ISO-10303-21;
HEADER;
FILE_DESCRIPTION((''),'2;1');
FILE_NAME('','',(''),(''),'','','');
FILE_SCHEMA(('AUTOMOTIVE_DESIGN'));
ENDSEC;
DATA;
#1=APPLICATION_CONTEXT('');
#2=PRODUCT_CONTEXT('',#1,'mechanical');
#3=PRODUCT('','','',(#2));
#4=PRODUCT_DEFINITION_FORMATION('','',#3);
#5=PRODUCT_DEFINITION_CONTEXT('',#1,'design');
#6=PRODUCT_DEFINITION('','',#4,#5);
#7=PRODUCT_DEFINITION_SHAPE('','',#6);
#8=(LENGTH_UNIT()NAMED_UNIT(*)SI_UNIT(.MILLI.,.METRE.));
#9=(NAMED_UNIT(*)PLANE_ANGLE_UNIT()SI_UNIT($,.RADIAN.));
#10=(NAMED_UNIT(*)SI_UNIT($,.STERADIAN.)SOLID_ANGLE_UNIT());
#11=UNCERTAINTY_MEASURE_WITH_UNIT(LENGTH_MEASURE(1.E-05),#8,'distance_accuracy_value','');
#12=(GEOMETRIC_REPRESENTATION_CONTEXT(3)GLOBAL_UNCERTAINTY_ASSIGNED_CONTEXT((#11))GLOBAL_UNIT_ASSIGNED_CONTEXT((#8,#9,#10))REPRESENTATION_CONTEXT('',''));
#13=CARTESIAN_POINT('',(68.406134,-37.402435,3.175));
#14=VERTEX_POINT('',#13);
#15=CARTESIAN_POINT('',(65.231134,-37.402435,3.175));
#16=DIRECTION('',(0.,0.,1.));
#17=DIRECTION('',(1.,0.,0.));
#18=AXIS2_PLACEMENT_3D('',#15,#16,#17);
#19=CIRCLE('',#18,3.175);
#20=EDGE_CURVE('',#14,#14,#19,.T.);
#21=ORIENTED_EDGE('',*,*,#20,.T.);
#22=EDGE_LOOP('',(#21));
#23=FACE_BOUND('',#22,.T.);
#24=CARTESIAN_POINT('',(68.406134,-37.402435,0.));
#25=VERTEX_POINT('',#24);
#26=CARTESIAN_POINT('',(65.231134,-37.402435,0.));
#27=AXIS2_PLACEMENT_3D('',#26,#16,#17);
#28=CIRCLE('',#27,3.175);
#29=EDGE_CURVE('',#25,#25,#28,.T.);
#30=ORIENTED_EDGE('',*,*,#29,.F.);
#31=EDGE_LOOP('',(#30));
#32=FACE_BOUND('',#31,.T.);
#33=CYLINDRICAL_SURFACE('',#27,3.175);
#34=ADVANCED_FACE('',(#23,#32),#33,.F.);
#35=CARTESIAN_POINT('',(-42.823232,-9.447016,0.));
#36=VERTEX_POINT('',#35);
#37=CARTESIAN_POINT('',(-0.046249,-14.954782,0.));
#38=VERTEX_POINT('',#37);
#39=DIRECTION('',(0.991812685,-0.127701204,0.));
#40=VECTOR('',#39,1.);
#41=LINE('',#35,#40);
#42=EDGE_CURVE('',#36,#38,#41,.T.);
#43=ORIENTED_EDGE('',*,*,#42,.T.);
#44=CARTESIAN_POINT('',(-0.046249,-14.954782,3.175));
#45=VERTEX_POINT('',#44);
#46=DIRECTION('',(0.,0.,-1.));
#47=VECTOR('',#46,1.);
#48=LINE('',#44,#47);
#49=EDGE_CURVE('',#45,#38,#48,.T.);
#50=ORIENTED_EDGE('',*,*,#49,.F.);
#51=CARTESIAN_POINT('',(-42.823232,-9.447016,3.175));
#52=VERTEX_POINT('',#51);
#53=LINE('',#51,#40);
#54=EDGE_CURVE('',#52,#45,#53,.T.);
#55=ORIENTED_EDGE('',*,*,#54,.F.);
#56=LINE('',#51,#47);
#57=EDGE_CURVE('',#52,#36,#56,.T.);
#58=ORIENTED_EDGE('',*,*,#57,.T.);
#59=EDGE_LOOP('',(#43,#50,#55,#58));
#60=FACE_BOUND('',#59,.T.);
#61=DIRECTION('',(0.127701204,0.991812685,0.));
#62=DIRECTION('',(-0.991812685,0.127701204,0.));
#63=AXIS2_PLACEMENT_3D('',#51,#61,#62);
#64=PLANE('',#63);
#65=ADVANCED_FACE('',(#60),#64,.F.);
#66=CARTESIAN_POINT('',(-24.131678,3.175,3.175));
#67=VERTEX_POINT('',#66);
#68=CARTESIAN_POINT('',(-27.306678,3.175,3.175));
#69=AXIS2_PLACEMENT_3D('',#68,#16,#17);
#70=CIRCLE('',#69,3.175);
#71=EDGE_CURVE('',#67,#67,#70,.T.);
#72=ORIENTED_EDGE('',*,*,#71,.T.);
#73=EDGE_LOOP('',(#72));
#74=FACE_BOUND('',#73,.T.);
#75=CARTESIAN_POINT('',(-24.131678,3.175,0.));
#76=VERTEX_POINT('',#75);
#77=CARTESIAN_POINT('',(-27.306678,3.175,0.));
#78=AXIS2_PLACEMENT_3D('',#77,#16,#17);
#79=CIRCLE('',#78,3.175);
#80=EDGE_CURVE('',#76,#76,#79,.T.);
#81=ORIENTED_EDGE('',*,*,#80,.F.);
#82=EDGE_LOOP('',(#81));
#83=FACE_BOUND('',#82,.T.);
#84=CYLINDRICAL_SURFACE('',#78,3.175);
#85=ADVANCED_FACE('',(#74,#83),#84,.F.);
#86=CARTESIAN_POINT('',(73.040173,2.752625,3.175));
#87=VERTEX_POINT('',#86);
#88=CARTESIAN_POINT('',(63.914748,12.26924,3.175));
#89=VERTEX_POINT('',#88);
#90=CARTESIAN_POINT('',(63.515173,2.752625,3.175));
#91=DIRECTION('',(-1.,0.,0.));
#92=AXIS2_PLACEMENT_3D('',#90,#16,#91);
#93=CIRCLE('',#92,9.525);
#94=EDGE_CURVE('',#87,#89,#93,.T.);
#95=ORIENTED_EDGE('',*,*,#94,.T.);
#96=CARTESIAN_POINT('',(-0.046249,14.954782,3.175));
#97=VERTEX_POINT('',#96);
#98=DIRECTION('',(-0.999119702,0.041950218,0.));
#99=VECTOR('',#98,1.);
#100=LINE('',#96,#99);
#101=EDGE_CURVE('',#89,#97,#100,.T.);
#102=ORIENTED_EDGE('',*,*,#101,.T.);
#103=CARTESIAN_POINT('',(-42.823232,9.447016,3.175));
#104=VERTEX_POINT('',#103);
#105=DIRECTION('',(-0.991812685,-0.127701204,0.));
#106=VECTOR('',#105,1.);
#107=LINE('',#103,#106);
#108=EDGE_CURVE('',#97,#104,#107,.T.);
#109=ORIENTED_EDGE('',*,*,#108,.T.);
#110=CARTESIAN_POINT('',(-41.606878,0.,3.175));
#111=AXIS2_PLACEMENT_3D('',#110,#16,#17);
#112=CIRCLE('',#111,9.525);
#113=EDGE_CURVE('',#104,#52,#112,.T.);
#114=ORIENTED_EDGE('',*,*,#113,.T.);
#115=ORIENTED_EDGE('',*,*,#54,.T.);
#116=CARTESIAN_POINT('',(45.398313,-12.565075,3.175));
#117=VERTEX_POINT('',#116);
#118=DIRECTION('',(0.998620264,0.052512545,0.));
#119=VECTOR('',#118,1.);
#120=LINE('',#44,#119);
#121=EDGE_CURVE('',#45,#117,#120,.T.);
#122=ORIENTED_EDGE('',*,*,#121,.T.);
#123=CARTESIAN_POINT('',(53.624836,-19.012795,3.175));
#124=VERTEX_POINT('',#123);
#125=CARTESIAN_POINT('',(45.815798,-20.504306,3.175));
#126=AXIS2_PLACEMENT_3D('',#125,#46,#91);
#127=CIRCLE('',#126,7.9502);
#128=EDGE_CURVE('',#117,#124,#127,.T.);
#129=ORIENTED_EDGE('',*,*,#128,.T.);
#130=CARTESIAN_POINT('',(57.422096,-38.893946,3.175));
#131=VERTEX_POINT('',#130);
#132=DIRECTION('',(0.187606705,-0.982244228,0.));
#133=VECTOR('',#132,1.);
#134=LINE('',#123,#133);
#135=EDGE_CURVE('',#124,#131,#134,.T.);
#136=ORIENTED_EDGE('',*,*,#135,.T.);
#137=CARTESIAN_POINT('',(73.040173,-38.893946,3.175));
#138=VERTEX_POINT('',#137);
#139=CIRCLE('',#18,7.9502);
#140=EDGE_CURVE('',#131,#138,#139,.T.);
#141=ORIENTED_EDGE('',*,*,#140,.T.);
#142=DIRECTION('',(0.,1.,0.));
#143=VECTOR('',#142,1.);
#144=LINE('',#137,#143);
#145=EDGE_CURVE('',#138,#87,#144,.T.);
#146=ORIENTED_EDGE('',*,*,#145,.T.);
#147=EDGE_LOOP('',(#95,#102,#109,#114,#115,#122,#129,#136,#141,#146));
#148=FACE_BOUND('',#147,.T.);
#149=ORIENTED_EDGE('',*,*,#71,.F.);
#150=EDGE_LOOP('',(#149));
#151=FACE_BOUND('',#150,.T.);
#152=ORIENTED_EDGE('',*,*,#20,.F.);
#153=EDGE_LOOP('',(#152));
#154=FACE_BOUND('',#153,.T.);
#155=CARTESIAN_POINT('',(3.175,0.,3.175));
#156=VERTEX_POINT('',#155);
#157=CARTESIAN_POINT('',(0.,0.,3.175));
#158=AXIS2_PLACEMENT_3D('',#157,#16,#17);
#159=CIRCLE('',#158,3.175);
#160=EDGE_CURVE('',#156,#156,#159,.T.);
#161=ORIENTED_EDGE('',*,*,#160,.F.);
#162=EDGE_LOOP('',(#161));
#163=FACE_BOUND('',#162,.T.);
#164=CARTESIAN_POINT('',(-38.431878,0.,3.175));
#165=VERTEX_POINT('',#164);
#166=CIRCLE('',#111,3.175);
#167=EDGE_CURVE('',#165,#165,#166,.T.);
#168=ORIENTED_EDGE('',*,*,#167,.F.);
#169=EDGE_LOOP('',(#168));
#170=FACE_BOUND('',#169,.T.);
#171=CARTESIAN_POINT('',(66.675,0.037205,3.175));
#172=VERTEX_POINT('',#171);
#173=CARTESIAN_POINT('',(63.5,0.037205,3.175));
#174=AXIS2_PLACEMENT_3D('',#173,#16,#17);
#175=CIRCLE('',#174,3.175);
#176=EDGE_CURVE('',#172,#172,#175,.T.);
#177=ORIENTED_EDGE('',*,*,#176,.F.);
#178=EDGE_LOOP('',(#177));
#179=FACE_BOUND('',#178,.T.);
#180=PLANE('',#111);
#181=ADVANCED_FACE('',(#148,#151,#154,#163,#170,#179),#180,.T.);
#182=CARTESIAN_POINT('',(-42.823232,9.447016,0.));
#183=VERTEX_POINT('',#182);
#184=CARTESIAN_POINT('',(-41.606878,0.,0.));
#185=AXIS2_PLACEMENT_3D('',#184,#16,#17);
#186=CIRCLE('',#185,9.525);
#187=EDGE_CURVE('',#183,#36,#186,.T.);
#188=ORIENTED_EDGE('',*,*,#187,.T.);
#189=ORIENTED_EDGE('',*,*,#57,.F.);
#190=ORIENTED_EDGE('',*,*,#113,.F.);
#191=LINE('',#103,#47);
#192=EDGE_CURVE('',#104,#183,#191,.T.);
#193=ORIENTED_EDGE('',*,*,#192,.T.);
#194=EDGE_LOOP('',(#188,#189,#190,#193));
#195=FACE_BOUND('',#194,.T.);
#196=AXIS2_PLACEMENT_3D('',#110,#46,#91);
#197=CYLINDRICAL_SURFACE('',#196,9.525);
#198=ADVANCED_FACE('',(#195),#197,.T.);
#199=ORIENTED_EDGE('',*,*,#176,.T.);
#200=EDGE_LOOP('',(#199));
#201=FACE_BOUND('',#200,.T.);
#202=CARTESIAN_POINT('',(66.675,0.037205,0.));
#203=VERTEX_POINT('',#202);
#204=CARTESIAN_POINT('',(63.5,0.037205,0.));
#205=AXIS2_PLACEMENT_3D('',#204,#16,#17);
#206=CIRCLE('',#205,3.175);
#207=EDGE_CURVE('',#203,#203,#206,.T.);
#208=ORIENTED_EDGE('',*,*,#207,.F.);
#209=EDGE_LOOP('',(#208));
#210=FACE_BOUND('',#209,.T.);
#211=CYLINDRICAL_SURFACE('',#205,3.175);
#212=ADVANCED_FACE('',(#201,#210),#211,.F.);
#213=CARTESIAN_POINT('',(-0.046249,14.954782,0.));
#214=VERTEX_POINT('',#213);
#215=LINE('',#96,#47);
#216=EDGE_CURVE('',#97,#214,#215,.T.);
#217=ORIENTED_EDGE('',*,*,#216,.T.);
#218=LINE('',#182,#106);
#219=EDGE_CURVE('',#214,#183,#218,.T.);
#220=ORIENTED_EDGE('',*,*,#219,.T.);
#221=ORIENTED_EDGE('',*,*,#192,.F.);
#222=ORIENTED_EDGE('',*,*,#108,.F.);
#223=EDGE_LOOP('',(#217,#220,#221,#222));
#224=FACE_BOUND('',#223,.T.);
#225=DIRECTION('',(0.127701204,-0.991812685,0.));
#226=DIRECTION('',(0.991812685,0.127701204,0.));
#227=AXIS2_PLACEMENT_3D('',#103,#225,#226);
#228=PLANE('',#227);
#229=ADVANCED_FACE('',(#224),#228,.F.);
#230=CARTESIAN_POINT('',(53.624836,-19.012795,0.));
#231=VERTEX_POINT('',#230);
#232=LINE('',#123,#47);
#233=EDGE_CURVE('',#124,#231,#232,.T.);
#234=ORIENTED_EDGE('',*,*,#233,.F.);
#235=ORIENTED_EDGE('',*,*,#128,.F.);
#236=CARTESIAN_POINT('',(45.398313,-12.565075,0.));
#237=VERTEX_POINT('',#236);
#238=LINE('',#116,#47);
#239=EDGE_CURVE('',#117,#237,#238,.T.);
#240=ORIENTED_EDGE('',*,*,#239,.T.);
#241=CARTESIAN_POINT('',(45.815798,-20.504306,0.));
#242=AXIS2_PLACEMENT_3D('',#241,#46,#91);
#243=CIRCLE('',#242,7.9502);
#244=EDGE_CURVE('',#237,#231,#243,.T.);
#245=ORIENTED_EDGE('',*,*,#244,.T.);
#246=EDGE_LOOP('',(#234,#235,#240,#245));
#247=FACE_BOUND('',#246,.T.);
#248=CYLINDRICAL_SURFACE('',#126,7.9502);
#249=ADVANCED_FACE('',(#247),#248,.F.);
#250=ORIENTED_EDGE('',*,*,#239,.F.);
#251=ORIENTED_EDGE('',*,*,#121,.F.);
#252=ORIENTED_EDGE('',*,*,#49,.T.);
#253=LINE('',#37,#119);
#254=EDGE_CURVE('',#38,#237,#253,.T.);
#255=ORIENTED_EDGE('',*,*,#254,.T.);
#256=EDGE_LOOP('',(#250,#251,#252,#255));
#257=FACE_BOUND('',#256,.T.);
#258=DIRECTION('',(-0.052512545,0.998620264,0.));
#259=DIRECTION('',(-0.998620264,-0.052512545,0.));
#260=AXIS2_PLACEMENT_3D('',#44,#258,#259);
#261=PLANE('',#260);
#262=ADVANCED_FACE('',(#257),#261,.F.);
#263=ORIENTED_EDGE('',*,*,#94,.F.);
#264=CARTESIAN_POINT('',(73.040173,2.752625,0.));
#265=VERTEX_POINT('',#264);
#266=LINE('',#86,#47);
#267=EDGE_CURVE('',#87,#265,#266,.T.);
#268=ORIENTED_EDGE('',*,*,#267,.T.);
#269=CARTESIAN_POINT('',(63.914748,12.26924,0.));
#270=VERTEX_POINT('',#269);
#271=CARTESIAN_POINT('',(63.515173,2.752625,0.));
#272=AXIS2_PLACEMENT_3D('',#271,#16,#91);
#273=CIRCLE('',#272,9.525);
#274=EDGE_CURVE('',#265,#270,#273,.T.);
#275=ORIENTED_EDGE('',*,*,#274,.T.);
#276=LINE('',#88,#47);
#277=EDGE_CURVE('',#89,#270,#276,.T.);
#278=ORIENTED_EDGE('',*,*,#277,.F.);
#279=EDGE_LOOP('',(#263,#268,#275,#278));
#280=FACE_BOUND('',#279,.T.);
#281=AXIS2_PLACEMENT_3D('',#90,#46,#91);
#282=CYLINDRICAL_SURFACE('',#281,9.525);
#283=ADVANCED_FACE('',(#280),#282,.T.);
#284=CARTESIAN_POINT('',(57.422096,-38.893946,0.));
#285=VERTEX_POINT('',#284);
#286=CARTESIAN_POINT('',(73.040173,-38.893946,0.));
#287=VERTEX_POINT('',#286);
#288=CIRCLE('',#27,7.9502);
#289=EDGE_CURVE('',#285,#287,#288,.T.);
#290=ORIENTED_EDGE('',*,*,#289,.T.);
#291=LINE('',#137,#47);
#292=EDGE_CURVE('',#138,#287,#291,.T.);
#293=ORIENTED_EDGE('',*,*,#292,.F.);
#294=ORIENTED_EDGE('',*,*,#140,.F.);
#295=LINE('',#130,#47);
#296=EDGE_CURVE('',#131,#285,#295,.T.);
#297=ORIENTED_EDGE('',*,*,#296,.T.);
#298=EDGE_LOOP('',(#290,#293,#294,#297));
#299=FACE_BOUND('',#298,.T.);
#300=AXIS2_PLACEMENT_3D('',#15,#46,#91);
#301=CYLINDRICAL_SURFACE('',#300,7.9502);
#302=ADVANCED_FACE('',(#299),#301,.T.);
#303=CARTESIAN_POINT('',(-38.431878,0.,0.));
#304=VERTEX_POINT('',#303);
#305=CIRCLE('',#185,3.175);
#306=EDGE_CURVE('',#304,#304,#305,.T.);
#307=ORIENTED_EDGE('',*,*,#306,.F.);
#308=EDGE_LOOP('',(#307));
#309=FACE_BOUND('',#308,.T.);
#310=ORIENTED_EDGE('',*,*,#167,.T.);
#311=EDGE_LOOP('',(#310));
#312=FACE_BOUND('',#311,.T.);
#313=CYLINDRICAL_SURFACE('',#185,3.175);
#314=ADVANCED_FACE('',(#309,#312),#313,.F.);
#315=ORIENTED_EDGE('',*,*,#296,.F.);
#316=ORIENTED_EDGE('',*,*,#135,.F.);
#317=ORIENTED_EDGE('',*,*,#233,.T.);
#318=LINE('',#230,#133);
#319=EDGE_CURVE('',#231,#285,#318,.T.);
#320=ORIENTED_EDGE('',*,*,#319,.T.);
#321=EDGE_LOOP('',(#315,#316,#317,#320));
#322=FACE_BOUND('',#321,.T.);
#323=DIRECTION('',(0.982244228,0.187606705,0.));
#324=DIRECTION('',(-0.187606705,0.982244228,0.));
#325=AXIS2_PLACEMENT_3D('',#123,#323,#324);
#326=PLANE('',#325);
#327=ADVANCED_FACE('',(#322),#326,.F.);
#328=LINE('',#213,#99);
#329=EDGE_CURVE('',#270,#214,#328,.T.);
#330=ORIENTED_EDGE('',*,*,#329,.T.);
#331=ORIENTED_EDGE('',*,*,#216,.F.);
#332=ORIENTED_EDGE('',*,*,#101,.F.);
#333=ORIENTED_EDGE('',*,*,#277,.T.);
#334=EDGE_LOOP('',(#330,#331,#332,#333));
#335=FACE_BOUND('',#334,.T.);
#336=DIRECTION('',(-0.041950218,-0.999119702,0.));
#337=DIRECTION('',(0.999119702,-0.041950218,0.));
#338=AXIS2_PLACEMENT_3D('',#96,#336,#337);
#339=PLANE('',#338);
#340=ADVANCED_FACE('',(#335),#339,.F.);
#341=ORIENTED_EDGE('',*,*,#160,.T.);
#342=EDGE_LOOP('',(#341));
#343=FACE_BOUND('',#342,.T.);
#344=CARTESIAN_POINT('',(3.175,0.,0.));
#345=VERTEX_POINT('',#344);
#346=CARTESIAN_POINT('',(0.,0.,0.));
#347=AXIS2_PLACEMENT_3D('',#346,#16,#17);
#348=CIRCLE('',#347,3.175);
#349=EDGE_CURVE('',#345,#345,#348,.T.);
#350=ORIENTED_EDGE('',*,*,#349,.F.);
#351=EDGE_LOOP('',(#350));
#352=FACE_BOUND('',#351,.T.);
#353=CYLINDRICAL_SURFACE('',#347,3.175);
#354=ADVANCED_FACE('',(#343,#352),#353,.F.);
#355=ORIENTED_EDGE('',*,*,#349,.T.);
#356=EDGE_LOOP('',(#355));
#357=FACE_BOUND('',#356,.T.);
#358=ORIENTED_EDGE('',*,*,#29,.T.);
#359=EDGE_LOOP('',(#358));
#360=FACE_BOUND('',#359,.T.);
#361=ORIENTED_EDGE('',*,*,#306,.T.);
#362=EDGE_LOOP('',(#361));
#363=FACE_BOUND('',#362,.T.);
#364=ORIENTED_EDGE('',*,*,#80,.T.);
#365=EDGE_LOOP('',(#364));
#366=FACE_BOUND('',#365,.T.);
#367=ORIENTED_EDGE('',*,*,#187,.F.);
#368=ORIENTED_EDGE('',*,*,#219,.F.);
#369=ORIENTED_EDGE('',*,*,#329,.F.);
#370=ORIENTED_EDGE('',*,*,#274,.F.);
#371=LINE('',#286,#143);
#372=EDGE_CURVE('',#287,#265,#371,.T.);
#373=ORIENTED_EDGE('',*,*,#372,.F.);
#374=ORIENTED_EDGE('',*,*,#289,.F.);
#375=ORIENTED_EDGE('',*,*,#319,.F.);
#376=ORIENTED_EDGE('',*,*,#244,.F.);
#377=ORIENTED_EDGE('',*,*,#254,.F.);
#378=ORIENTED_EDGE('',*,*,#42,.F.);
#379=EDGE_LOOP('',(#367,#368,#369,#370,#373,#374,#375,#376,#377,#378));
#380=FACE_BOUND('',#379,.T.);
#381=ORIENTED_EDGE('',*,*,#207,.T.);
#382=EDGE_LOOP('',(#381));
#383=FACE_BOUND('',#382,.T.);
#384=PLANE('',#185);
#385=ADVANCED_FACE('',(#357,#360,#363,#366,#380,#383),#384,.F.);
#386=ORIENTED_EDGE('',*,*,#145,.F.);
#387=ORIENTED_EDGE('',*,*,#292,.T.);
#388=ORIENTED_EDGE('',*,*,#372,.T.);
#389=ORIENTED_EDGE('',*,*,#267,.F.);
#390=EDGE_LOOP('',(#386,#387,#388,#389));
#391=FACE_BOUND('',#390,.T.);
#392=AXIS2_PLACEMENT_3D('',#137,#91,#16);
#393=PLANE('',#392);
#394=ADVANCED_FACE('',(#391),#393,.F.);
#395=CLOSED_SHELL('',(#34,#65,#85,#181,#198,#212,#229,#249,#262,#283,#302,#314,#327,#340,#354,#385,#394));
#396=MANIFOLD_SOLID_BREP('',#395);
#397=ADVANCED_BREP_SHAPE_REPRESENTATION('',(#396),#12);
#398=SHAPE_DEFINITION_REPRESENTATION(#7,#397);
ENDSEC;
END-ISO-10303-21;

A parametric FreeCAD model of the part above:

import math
import FreeCAD as App
import Part
import Sketcher
Q = App.Units.Quantity

doc = App.newDocument("Part")
body = doc.addObject("PartDesign::Body", "Body")

# Sketch on XY plane
sketch1 = body.newObject("Sketcher::SketchObject", "Sketch")
sketch1.AttachmentSupport = (doc.getObject("XY_Plane"), [""])
sketch1.MapMode = "FlatFace"
sketch1.addGeometry(Part.LineSegment(App.Vector(0, 15, 0), App.Vector(-43, 9, 0)), False)
sketch1.addGeometry(Part.ArcOfCircle(Part.Circle(App.Vector(-42, 0, 0), App.Vector(0, 0, 1), 10), math.radians(97), math.radians(263)), False)
sketch1.addGeometry(Part.LineSegment(App.Vector(-43, -9, 0), App.Vector(0, -15, 0)), False)
sketch1.addGeometry(Part.LineSegment(App.Vector(0, -15, 0), App.Vector(45, -13, 0)), False)
sketch1.addGeometry(Part.ArcOfCircle(Part.Circle(App.Vector(46, -21, 0), App.Vector(0, 0, 1), 8), math.radians(11), math.radians(93)), False)
sketch1.addGeometry(Part.LineSegment(App.Vector(54, -19, 0), App.Vector(57, -39, 0)), False)
sketch1.addGeometry(Part.ArcOfCircle(Part.Circle(App.Vector(65, -37, 0), App.Vector(0, 0, 1), 8), math.radians(-169), math.radians(-11)), False)
sketch1.addGeometry(Part.LineSegment(App.Vector(73, -39, 0), App.Vector(73, 3, 0)), False)
sketch1.addGeometry(Part.ArcOfCircle(Part.Circle(App.Vector(64, 3, 0), App.Vector(0, 0, 1), 10), math.radians(0), math.radians(88)), False)
sketch1.addGeometry(Part.LineSegment(App.Vector(64, 12, 0), App.Vector(0, 15, 0)), False)
sketch1.addConstraint(Sketcher.Constraint("Tangent", 0, 2, 1, 1))
sketch1.addConstraint(Sketcher.Constraint("Tangent", 1, 2, 2, 1))
sketch1.addConstraint(Sketcher.Constraint("Coincident", 2, 2, 3, 1))
sketch1.addConstraint(Sketcher.Constraint("Tangent", 3, 2, 4, 2))
sketch1.addConstraint(Sketcher.Constraint("Tangent", 4, 1, 5, 1))
sketch1.addConstraint(Sketcher.Constraint("Tangent", 5, 2, 6, 1))
sketch1.addConstraint(Sketcher.Constraint("Coincident", 6, 2, 7, 1))
sketch1.addConstraint(Sketcher.Constraint("Tangent", 7, 2, 8, 1))
sketch1.addConstraint(Sketcher.Constraint("Tangent", 8, 2, 9, 1))
sketch1.addConstraint(Sketcher.Constraint("Coincident", 9, 2, 0, 1))
sketch1.addConstraint(Sketcher.Constraint("Vertical", 7))
sketch1.addConstraint(Sketcher.Constraint("Equal", 4, 6))
sketch1.addConstraint(Sketcher.Constraint("Equal", 1, 8))
sketch1.addConstraint(Sketcher.Constraint("Symmetric", 0, 2, 1, 2, -1))
sketch1.addConstraint(Sketcher.Constraint("Horizontal", 5, 2, 6, 2))
sketch1.addConstraint(Sketcher.Constraint("Vertical", 2, 2, 9, 2))
sketch1.addConstraint(Sketcher.Constraint("Radius", 1, Q("0.375 in")))
sketch1.addConstraint(Sketcher.Constraint("Radius", 4, Q("0.313 in")))
sketch1.addConstraint(Sketcher.Constraint("DistanceY", 7, 1, 7, 2, 41.646571))
sketch1.addConstraint(Sketcher.Constraint("DistanceY", 3, 2, 8, 3, 15.3177))
sketch1.addConstraint(Sketcher.Constraint("DistanceX", 4, 1, 6, 3, 11.606299))
sketch1.addConstraint(Sketcher.Constraint("Distance", 3, 45.50735))
sketch1.addConstraint(Sketcher.Constraint("Distance", 9, 64.017352))
sketch1.addConstraint(Sketcher.Constraint("DistanceX", 1, 3, -1, 1, 41.606878))
sketch1.addConstraint(Sketcher.Constraint("DistanceX", 0, 2, -1, 1, 42.823232))
sketch1.addConstraint(Sketcher.Constraint("DistanceX", 2, 2, -1, 1, 0.046249))
pad1 = body.newObject("PartDesign::Pad", "Pad")
pad1.Profile = sketch1
pad1.Length = Q("0.125 in")

# Sketch on XY plane
sketch2 = body.newObject("Sketcher::SketchObject", "Sketch001")
sketch2.AttachmentSupport = (doc.getObject("XY_Plane"), [""])
sketch2.MapMode = "FlatFace"
sketch2.AttachmentOffset = App.Placement(App.Vector(0, 0, 0.125 * 25.4), App.Rotation())
sketch2.addGeometry(Part.Circle(App.Vector(-41.6, 0, 0), App.Vector(0, 0, 1), 3.2), False)
sketch2.addGeometry(Part.Circle(App.Vector(-27.3, 3.2, 0), App.Vector(0, 0, 1), 3.2), False)
sketch2.addGeometry(Part.Circle(App.Vector(0, 0, 0), App.Vector(0, 0, 1), 3.2), False)
sketch2.addGeometry(Part.Circle(App.Vector(63.5, 0, 0), App.Vector(0, 0, 1), 3.2), False)
sketch2.addGeometry(Part.Circle(App.Vector(65.2, -37.4, 0), App.Vector(0, 0, 1), 3.2), False)
sketch2.addConstraint(Sketcher.Constraint("Coincident", 2, 3, -1, 1))
sketch2.addConstraint(Sketcher.Constraint("Equal", 0, 1))
sketch2.addConstraint(Sketcher.Constraint("Equal", 1, 2))
sketch2.addConstraint(Sketcher.Constraint("Equal", 2, 3))
sketch2.addConstraint(Sketcher.Constraint("Equal", 3, 4))
sketch2.addConstraint(Sketcher.Constraint("PointOnObject", 0, 3, -1))
sketch2.addConstraint(Sketcher.Constraint("Diameter", 0, Q("0.25 in")))
sketch2.addConstraint(Sketcher.Constraint("DistanceX", -1, 1, 3, 3, Q("2.5 in")))
sketch2.addConstraint(Sketcher.Constraint("DistanceY", -1, 1, 1, 3, Q("0.125 in")))
sketch2.addConstraint(Sketcher.Constraint("DistanceX", 0, 3, 1, 3, Q("0.563 in")))
sketch2.addConstraint(Sketcher.Constraint("DistanceX", 0, 3, -1, 1, 41.606878))
sketch2.addConstraint(Sketcher.Constraint("DistanceY", 4, 3, 3, 3, 37.43964))
sketch2.addConstraint(Sketcher.Constraint("DistanceY", -1, 1, 3, 3, 0.037205))
sketch2.addConstraint(Sketcher.Constraint("DistanceX", -1, 1, 4, 3, 65.231134))
pocket1 = body.newObject("PartDesign::Pocket", "Pocket")
pocket1.Profile = sketch2
pocket1.Type = "ThroughAll"

doc.recompute()
